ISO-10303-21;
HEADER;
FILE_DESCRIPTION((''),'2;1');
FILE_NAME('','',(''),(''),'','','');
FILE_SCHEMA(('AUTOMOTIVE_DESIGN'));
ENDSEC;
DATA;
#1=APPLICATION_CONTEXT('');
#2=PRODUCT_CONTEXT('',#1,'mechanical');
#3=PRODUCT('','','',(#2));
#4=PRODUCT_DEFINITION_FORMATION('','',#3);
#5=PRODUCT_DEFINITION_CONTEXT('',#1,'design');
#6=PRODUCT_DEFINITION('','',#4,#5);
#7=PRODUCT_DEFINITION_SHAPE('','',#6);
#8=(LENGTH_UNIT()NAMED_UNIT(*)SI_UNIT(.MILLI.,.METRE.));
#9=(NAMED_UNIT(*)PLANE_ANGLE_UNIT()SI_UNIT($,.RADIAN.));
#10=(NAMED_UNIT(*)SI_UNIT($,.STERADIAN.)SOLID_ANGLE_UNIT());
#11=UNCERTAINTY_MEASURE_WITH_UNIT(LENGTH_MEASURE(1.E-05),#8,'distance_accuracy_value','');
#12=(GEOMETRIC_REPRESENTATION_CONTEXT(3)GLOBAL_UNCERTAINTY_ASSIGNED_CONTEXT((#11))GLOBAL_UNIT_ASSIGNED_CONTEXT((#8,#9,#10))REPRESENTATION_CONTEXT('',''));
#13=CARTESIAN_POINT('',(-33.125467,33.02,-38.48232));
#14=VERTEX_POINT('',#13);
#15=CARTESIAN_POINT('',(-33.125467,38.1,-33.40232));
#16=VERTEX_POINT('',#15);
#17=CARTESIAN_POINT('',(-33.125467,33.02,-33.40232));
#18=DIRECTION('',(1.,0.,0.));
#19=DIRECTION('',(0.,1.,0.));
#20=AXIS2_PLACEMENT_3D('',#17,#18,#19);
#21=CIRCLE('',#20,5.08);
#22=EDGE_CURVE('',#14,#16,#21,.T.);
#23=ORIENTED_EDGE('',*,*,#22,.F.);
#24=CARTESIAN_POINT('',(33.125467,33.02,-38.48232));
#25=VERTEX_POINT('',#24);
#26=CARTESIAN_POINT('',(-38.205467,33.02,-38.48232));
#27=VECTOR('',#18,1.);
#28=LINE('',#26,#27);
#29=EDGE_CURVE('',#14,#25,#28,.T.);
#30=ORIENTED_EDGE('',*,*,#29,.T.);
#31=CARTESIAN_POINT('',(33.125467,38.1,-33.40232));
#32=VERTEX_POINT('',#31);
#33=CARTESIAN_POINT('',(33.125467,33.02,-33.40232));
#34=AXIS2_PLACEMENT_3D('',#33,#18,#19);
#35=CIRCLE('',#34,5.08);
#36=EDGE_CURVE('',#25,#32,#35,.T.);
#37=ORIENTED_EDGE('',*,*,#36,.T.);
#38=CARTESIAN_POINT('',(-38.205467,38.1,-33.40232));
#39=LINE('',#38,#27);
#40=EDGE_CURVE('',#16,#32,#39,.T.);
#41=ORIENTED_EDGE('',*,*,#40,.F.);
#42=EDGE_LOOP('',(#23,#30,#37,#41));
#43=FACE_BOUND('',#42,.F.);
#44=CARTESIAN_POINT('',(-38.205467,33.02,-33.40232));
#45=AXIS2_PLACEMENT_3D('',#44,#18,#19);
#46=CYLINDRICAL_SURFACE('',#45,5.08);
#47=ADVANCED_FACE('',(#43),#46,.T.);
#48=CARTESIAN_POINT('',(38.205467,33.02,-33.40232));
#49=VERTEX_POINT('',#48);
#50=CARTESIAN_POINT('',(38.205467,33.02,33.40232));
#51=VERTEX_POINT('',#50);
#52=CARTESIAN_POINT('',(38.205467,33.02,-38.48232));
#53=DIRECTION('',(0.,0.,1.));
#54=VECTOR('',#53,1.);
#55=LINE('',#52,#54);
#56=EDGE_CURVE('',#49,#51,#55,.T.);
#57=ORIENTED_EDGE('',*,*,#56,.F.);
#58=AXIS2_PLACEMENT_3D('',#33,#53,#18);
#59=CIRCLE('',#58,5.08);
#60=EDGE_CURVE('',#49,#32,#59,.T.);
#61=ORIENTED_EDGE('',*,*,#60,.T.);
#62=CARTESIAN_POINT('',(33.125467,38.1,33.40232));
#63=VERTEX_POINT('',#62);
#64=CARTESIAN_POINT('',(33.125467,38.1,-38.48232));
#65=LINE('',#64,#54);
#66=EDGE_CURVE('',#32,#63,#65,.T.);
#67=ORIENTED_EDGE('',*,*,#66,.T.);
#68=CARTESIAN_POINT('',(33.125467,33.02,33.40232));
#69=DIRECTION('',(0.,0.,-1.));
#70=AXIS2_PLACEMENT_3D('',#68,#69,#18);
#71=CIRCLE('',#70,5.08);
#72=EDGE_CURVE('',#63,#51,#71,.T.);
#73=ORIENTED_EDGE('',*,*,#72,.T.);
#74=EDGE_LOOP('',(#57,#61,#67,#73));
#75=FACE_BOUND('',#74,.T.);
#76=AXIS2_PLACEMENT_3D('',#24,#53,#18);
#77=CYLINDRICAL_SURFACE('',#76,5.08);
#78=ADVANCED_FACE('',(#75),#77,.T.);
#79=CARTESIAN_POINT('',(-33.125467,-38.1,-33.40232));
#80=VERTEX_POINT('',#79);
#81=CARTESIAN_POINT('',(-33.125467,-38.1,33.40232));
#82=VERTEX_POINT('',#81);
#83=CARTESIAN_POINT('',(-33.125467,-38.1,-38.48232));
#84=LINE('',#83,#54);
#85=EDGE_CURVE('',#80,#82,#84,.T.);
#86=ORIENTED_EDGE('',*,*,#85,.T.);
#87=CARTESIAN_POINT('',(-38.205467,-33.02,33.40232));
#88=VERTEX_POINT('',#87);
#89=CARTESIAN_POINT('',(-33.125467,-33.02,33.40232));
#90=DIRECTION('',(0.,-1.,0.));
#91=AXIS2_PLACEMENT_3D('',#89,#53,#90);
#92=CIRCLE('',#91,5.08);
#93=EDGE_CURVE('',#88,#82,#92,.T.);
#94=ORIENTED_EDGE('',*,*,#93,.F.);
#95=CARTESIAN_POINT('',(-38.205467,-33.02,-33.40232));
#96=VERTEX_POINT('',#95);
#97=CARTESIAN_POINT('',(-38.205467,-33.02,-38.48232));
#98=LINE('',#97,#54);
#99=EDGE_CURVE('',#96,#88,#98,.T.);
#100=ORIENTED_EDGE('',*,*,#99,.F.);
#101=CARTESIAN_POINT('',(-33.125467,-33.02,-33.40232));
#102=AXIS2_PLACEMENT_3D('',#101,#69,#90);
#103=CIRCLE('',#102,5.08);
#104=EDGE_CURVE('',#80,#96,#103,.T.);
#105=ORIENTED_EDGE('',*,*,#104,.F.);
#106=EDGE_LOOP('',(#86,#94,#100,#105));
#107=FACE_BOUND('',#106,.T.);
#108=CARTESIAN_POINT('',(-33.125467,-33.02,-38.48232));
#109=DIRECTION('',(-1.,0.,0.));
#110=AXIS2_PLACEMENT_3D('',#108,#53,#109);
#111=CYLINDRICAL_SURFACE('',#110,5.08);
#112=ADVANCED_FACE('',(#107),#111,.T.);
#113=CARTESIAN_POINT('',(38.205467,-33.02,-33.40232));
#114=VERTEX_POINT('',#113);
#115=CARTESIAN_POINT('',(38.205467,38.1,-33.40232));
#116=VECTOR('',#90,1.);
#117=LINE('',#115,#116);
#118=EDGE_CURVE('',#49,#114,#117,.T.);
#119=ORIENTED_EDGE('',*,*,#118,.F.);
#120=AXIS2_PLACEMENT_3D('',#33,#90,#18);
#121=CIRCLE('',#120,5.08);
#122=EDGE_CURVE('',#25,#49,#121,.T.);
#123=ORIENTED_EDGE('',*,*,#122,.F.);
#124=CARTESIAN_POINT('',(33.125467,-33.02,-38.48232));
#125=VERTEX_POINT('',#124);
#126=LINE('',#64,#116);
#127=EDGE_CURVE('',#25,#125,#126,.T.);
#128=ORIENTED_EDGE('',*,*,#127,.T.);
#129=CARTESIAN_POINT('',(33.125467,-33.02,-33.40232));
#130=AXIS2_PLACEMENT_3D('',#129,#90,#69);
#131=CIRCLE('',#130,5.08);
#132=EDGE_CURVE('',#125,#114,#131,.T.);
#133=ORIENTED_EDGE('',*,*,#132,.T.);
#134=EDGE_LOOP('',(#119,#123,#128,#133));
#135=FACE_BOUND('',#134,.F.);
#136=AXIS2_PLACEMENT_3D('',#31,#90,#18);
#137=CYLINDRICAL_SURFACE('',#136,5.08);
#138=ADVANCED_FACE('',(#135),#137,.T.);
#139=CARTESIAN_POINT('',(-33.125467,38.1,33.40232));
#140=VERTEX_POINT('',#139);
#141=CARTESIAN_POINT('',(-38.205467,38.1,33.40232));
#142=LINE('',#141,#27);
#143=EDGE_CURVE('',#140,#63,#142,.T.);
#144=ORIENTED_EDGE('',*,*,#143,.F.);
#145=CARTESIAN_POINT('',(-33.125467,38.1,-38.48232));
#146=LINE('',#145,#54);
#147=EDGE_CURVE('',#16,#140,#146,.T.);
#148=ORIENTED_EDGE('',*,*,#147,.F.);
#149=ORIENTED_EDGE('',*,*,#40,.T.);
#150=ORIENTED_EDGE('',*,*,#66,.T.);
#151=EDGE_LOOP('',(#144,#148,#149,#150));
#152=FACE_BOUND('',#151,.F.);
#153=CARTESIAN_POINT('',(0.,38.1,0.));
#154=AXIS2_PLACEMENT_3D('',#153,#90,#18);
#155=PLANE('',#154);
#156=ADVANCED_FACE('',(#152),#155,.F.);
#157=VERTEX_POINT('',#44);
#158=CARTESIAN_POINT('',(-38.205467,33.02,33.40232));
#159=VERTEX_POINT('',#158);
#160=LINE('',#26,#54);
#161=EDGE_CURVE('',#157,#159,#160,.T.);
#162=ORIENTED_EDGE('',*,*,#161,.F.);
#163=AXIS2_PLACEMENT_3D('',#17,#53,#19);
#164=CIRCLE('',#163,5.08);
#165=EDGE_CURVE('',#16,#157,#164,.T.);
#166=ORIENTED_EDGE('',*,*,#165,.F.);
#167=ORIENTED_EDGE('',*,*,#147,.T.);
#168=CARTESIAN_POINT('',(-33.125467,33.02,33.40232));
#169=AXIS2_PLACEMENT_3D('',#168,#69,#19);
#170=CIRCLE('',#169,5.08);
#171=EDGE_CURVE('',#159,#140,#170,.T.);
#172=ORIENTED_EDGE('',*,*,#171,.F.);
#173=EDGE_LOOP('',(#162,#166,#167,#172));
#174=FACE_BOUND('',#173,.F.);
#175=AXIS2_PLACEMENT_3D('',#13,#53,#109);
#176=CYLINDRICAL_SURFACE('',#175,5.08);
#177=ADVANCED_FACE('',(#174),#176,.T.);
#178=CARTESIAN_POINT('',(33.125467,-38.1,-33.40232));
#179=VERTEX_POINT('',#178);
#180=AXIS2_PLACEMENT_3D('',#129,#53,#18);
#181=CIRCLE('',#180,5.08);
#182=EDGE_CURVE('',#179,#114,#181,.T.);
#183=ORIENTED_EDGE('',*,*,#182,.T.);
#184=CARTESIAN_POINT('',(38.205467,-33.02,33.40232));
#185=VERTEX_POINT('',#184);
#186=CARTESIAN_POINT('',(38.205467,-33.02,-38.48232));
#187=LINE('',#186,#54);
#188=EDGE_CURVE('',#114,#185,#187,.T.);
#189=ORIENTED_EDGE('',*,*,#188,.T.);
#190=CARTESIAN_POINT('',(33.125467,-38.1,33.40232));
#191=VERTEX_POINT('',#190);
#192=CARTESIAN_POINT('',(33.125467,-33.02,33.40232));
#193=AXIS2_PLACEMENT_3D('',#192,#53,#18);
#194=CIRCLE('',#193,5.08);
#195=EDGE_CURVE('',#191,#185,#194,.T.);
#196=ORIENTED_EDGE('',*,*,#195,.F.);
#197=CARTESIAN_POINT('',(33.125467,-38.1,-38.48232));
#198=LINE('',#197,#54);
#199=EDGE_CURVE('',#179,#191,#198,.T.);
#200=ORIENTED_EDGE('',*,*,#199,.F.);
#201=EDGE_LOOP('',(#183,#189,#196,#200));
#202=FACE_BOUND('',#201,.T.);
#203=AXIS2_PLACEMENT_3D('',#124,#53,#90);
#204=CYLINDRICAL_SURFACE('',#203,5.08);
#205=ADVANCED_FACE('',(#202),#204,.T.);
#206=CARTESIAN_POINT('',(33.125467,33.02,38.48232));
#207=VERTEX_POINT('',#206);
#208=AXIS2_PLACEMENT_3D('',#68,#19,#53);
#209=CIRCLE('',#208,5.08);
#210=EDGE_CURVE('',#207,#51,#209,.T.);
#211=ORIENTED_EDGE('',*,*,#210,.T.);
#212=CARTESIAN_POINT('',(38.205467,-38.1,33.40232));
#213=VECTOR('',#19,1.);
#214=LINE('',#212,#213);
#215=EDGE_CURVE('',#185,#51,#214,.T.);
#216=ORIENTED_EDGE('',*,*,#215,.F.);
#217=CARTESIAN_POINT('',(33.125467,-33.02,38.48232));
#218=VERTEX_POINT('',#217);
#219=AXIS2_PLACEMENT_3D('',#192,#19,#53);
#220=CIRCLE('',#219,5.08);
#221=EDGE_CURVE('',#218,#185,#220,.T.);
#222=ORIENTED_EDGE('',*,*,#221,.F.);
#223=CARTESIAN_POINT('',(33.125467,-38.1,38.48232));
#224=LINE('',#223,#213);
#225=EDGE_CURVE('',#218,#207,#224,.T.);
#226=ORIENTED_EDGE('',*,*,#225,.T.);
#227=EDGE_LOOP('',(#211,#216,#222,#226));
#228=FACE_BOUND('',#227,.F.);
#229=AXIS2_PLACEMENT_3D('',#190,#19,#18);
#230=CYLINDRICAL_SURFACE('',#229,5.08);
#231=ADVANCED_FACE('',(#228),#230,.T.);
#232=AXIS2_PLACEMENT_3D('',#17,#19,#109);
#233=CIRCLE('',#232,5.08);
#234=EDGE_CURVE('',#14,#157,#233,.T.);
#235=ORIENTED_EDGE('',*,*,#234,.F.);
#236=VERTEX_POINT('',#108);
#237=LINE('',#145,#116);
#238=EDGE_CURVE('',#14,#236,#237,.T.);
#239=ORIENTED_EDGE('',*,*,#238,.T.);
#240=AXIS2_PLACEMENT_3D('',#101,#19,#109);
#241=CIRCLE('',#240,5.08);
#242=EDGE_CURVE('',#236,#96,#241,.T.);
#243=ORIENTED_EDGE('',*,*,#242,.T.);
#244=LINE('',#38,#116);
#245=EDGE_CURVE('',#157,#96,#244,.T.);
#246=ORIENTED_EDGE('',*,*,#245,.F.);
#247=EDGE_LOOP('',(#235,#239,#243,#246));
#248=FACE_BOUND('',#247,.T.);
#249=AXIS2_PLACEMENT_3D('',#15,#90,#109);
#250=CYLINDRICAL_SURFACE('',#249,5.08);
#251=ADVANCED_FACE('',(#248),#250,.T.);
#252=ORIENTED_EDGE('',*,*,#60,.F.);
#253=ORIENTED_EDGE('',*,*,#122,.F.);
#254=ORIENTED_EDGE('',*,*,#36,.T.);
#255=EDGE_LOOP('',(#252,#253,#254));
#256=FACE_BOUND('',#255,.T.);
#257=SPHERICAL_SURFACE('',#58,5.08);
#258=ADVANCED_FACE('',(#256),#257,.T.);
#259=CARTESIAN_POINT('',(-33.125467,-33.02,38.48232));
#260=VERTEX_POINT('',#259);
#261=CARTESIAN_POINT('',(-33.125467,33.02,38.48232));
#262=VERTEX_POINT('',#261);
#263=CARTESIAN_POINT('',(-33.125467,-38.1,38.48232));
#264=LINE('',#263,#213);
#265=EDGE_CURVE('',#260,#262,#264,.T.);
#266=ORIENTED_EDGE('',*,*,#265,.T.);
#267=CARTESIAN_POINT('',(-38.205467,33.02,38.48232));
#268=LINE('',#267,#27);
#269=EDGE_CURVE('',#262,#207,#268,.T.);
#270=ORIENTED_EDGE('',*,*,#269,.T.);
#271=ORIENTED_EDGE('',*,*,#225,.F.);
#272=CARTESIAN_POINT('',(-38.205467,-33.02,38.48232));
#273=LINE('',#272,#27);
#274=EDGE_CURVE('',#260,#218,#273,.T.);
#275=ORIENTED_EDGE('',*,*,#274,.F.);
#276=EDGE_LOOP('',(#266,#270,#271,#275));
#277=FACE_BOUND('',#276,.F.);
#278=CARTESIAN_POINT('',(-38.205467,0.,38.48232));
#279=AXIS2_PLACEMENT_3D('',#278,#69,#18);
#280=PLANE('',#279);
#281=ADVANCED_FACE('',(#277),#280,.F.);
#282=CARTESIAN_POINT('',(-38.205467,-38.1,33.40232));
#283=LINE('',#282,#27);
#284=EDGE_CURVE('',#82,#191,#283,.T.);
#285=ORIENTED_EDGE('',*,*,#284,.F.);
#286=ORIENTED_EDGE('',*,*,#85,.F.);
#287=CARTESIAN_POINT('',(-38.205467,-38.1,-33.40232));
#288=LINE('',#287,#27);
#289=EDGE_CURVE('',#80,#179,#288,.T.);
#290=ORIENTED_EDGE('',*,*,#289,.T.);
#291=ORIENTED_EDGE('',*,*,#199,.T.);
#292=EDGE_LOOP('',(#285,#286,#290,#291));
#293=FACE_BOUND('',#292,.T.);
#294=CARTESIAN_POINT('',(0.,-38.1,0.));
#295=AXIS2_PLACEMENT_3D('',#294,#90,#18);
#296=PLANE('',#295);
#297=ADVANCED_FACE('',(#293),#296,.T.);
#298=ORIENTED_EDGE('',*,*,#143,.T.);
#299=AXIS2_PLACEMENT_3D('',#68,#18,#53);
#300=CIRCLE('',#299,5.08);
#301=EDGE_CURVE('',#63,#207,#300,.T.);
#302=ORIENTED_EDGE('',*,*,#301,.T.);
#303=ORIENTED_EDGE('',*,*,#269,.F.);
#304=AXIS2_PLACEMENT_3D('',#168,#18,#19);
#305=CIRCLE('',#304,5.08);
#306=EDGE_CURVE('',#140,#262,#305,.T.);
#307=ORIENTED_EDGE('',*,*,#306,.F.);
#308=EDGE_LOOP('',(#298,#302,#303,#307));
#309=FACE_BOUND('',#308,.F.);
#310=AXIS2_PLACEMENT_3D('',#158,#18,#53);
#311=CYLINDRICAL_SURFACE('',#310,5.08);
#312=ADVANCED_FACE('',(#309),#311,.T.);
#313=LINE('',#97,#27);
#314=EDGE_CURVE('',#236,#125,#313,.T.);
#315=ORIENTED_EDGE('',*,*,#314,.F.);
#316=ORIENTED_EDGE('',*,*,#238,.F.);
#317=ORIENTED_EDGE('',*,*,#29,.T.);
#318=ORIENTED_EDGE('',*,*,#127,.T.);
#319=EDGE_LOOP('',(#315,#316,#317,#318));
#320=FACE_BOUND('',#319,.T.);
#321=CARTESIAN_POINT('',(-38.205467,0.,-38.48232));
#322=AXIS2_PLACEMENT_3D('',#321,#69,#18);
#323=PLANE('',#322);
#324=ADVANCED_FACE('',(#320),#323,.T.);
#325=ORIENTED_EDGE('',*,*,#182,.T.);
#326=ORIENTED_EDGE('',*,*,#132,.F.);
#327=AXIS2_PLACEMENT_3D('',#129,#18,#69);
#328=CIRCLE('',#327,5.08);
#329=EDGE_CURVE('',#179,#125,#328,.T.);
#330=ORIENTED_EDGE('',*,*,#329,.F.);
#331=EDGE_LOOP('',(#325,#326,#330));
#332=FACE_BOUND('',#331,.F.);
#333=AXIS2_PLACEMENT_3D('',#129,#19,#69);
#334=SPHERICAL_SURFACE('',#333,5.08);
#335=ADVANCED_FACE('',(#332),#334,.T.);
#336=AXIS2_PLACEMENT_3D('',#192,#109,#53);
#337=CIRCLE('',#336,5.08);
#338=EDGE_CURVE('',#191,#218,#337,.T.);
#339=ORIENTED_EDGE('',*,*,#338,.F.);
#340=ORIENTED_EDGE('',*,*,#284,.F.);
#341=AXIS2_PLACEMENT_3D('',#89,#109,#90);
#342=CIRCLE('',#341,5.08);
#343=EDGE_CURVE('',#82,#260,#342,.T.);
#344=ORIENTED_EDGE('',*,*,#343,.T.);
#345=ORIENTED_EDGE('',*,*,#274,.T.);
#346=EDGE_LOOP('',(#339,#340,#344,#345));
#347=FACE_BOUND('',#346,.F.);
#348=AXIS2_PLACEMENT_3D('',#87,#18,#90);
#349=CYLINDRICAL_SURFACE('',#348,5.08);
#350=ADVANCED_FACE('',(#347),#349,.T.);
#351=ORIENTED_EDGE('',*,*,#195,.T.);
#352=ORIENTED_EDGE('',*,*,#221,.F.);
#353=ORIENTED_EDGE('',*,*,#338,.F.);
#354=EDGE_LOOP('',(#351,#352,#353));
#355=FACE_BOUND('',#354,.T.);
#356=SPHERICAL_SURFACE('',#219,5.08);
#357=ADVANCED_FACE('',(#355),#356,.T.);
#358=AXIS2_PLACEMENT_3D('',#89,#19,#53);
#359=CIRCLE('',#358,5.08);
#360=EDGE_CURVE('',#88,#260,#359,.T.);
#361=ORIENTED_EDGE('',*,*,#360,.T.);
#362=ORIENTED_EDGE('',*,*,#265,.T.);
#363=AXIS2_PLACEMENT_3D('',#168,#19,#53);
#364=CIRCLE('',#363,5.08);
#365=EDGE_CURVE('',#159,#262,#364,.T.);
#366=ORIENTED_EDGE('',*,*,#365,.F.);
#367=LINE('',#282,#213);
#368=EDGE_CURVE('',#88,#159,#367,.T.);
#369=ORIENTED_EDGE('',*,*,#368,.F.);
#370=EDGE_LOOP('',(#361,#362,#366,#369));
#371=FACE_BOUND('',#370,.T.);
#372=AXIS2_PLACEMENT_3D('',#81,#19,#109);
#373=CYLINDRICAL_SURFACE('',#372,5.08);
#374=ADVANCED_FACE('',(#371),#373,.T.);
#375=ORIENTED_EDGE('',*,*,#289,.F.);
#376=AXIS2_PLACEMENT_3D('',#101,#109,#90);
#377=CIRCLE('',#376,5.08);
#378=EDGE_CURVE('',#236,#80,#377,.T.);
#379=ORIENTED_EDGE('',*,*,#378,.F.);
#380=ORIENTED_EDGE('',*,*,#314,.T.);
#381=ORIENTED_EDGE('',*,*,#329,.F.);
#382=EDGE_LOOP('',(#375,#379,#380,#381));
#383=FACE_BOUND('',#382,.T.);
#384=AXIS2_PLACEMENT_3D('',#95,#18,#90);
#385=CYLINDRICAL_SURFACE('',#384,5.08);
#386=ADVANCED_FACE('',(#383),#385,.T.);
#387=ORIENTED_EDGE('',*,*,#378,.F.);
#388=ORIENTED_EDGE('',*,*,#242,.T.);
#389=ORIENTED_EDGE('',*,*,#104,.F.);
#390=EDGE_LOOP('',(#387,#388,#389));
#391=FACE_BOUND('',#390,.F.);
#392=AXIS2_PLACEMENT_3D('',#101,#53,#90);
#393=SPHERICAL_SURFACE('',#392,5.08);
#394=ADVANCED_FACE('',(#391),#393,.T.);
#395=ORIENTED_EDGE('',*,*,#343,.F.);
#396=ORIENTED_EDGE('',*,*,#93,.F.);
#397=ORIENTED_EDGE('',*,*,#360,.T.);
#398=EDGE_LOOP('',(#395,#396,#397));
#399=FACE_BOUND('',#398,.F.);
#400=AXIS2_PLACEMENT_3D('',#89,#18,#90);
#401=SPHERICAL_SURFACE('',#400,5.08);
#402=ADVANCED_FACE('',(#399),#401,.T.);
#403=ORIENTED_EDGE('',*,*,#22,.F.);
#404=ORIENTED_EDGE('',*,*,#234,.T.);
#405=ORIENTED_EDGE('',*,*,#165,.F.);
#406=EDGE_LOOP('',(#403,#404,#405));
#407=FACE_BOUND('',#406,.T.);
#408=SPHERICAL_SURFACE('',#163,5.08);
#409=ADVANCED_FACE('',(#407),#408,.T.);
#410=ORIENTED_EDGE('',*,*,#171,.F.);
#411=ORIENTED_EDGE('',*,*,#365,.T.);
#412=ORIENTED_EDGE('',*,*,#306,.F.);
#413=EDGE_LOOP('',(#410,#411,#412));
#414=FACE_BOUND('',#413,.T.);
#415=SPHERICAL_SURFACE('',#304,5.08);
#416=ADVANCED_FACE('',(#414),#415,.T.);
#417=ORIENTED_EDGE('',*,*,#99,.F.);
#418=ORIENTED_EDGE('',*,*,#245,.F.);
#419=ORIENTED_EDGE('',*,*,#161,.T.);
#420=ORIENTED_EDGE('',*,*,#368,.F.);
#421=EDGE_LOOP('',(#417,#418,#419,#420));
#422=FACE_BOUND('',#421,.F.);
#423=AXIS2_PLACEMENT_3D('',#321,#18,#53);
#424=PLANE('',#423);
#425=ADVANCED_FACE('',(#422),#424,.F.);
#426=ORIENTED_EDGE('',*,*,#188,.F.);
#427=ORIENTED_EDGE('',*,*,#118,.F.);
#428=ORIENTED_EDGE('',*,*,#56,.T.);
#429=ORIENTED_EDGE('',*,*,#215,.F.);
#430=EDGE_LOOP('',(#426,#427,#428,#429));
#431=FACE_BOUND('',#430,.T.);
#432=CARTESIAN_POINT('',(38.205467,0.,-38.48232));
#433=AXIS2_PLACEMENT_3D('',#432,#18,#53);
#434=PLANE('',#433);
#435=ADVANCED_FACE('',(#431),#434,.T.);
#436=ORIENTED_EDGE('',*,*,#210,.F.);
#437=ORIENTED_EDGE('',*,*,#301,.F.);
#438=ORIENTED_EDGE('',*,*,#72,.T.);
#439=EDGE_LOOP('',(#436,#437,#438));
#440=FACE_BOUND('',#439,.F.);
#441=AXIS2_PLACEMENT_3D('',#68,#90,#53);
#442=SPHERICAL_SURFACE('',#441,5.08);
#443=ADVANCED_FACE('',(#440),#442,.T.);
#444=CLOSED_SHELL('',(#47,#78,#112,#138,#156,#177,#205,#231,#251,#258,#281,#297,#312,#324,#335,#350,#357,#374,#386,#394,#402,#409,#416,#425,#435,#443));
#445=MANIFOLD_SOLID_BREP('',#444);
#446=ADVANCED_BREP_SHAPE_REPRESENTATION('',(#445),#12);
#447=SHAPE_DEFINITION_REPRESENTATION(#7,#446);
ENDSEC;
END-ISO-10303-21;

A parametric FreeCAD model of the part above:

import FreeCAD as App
import Part
import Sketcher

V = App.Vector
Q = App.Units.Quantity


def add_polygon(sketch, points):
    """Adds a closed chain of lines whose ends are joined by coincident constraints."""
    first, n = sketch.GeometryCount, len(points)
    for a, b in zip(points, points[1:] + points[:1]):
        sketch.addGeometry(Part.LineSegment(App.Vector(*a, 0), App.Vector(*b, 0)), False)
    for i in range(n):
        sketch.addConstraint(Sketcher.Constraint("Coincident", first + i, 2, first + (i + 1) % n, 1))

doc = App.newDocument("Part")
body = doc.addObject("PartDesign::Body", "Body")

# Sketch on XZ plane
sketch1 = body.newObject("Sketcher::SketchObject", "Sketch")
sketch1.AttachmentSupport = (doc.getObject("XZ_Plane"), [""])
sketch1.MapMode = "FlatFace"
add_polygon(sketch1, [(-38.205467, 38.48232), (-38.205467, -38.48232), (38.205467, -38.48232), (38.205467, 38.48232)])  # lines 0-3
sketch1.addConstraint(Sketcher.Constraint("Vertical", 0))
sketch1.addConstraint(Sketcher.Constraint("Horizontal", 1))
sketch1.addConstraint(Sketcher.Constraint("Vertical", 2))
sketch1.addConstraint(Sketcher.Constraint("Horizontal", 3))
sketch1.addConstraint(Sketcher.Constraint("Symmetric", 0, 2, 2, 2, -1, 1))
sketch1.addConstraint(Sketcher.Constraint("DistanceY", 0, 2, 0, 1, 76.96464))
sketch1.addConstraint(Sketcher.Constraint("DistanceX", 1, 1, 1, 2, 76.410934))
pad1 = body.newObject("PartDesign::Pad", "Pad")
pad1.Profile = sketch1
pad1.Type = "TwoLengths"
pad1.Length = Q("1.5 in")
pad1.Length2 = Q("1.5 in")
doc.recompute()

fillet = body.newObject("PartDesign::Fillet", "Fillet")
fillet.Base = (pad1, ["Edge1"])
fillet.UseAllEdges = True
fillet.Radius = Q("0.2 in")

doc.recompute()
